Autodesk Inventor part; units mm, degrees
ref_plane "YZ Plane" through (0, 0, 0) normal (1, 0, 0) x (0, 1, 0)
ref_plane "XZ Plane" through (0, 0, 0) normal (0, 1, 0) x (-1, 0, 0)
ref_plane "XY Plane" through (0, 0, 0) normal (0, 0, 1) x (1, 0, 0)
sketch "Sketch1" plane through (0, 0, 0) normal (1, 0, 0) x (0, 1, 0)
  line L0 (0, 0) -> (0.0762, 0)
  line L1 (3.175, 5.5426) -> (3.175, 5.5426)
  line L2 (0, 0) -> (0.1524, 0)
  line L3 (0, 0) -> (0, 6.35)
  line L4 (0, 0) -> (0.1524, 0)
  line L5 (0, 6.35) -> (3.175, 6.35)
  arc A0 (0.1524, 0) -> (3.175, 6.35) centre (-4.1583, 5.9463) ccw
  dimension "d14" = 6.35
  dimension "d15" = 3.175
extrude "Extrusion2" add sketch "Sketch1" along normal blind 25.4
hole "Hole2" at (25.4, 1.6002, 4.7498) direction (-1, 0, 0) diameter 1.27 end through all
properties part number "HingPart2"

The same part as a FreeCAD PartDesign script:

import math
import FreeCAD as App
import Part
import Sketcher
Q = App.Units.Quantity

doc = App.newDocument("Part")
body = doc.addObject("PartDesign::Body", "Body")

sketch1 = body.newObject("Sketcher::SketchObject", "Sketch")
sketch1.AttachmentSupport = (doc.getObject("YZ_Plane"), [""])
sketch1.MapMode = "FlatFace"
sketch1.addGeometry(Part.LineSegment(App.Vector(0, 6.35, 0), App.Vector(0, 0, 0)), False)
sketch1.addGeometry(Part.LineSegment(App.Vector(0, 0, 0), App.Vector(0.15, 0, 0)), False)
sketch1.addGeometry(Part.ArcOfCircle(Part.Circle(App.Vector(-4.16, 5.95, 0), App.Vector(0, 0, 1), 7.34), math.radians(-54), math.radians(3)), False)
sketch1.addGeometry(Part.LineSegment(App.Vector(3.17, 6.35, 0), App.Vector(0, 6.35, 0)), False)
sketch1.addConstraint(Sketcher.Constraint("Coincident", 0, 2, 1, 1))
sketch1.addConstraint(Sketcher.Constraint("Coincident", 1, 2, 2, 1))
sketch1.addConstraint(Sketcher.Constraint("Coincident", 2, 2, 3, 1))
sketch1.addConstraint(Sketcher.Constraint("Coincident", 3, 2, 0, 1))
sketch1.addConstraint(Sketcher.Constraint("Vertical", 0))
sketch1.addConstraint(Sketcher.Constraint("Horizontal", 1))
sketch1.addConstraint(Sketcher.Constraint("Horizontal", 3))
sketch1.addConstraint(Sketcher.Constraint("Coincident", 0, 2, -1, 1))
sketch1.addConstraint(Sketcher.Constraint("DistanceY", 0, 2, 0, 1, Q("0.25 in")))
sketch1.addConstraint(Sketcher.Constraint("DistanceX", 3, 2, 3, 1, Q("0.125 in")))
sketch1.addConstraint(Sketcher.Constraint("DistanceX", 1, 1, 1, 2, Q("0.006 in")))
sketch1.addConstraint(Sketcher.Constraint("Radius", 2, 7.3444))
pad1 = body.newObject("PartDesign::Pad", "Pad")
pad1.Profile = sketch1
pad1.Length = Q("1 in")

sketch2 = body.newObject("Sketcher::SketchObject", "Sketch001")
sketch2.AttachmentSupport = (doc.getObject("YZ_Plane"), [""])
sketch2.MapMode = "FlatFace"
sketch2.AttachmentOffset = App.Placement(App.Vector(0, 0, 1 * 25.4), App.Rotation())
sketch2.addGeometry(Part.Circle(App.Vector(1.6, 4.7, 0), App.Vector(0, 0, 1), 0.6), False)
sketch2.addConstraint(Sketcher.Constraint("Diameter", 0, Q("0.05 in")))
sketch2.addConstraint(Sketcher.Constraint("DistanceX", -1, 1, 0, 3, Q("0.063 in")))
sketch2.addConstraint(Sketcher.Constraint("DistanceY", -1, 1, 0, 3, Q("0.187 in")))
doc.recompute()
hole = body.newObject("PartDesign::Hole", "Hole")
hole.Profile = sketch2
hole.ThreadType = "None"
hole.Diameter = Q("0.05 in")
hole.DepthType = "ThroughAll"

doc.recompute()
